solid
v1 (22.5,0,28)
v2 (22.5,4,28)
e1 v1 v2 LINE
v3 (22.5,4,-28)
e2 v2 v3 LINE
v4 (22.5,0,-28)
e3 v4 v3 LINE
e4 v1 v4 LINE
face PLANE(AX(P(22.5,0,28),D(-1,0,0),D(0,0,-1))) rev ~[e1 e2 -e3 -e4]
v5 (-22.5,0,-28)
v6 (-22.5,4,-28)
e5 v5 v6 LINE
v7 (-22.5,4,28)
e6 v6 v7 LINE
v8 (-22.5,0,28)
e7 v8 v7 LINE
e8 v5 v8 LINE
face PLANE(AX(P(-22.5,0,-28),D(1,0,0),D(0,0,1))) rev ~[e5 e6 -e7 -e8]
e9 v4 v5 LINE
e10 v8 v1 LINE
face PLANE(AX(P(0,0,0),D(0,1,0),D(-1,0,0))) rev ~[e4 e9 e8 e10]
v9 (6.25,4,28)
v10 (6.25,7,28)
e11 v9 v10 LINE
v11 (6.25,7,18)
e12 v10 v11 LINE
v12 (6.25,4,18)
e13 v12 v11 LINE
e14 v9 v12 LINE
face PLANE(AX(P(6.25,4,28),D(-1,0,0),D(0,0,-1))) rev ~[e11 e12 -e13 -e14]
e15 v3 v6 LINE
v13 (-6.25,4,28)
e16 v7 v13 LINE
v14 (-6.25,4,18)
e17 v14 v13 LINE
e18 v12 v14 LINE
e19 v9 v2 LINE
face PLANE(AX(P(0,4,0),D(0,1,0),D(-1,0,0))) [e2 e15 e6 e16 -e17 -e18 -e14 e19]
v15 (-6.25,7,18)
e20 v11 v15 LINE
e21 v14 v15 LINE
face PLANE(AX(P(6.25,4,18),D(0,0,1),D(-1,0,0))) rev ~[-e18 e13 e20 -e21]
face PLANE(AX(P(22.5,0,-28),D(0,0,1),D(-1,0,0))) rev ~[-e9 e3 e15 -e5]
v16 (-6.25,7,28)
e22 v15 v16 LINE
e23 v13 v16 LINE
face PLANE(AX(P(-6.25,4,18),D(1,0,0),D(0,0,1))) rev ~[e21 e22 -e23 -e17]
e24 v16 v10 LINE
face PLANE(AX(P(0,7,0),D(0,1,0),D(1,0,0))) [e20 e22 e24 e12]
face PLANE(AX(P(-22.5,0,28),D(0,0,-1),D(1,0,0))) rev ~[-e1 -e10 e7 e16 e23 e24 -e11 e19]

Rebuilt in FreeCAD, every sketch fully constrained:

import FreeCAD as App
import Part
import Sketcher
Q = App.Units.Quantity


def add_polygon(sketch, points):
    """Adds a closed chain of lines whose ends are joined by coincident constraints."""
    first, n = sketch.GeometryCount, len(points)
    for a, b in zip(points, points[1:] + points[:1]):
        sketch.addGeometry(Part.LineSegment(App.Vector(*a, 0), App.Vector(*b, 0)), False)
    for i in range(n):
        sketch.addConstraint(Sketcher.Constraint("Coincident", first + i, 2, first + (i + 1) % n, 1))

doc = App.newDocument("Part")
body = doc.addObject("PartDesign::Body", "Body")

# Sketch on XZ plane
sketch1 = doc.addObject("Sketcher::SketchObject", "Sketch")
body.addObject(sketch1)
sketch1.AttachmentSupport = (doc.XZ_Plane, [""])
sketch1.MapMode = "FlatFace"
add_polygon(sketch1, [(22.5, 28), (22.5, -28), (-22.5, -28), (-22.5, 28)])  # lines 0-3
sketch1.addConstraint([
    Sketcher.Constraint("Vertical", 0),
    Sketcher.Constraint("Horizontal", 1),
    Sketcher.Constraint("Vertical", 2),
    Sketcher.Constraint("Horizontal", 3),
    Sketcher.Constraint("Symmetric", 0, 2, 2, 2, -1, 1),
    Sketcher.Constraint("DistanceX", 1, 2, 1, 1, Q("45 mm")),
    Sketcher.Constraint("DistanceY", 0, 2, 0, 1, Q("56 mm")),
])
pad1 = doc.addObject("PartDesign::Pad", "Pad")
body.addObject(pad1)
pad1.Profile = sketch1
pad1.Length = 4
pad1.Reversed = True

# Sketch on XZ plane
sketch2 = doc.addObject("Sketcher::SketchObject", "Sketch001")
body.addObject(sketch2)
sketch2.AttachmentSupport = (doc.XZ_Plane, [""])
sketch2.MapMode = "FlatFace"
sketch2.AttachmentOffset = App.Placement(App.Vector(0, 0, -4), App.Rotation())
add_polygon(sketch2, [(-6.25, 18), (-6.25, 28), (6.25, 28), (6.25, 18)])  # lines 0-3
sketch2.addConstraint([
    Sketcher.Constraint("Vertical", 0),
    Sketcher.Constraint("Horizontal", 1),
    Sketcher.Constraint("Vertical", 2),
    Sketcher.Constraint("Horizontal", 3),
    Sketcher.Constraint("DistanceY", 0, 1, 0, 2, Q("10 mm")),
    Sketcher.Constraint("DistanceX", 1, 1, 1, 2, Q("12.5 mm")),
    Sketcher.Constraint("DistanceY", -1, 1, 0, 2, Q("28 mm")),
    Sketcher.Constraint("DistanceX", 0, 2, -1, 1, Q("6.25 mm")),
])
pad2 = doc.addObject("PartDesign::Pad", "Pad001")
body.addObject(pad2)
pad2.Profile = sketch2
pad2.Length = 3
pad2.Reversed = True

doc.recompute()
